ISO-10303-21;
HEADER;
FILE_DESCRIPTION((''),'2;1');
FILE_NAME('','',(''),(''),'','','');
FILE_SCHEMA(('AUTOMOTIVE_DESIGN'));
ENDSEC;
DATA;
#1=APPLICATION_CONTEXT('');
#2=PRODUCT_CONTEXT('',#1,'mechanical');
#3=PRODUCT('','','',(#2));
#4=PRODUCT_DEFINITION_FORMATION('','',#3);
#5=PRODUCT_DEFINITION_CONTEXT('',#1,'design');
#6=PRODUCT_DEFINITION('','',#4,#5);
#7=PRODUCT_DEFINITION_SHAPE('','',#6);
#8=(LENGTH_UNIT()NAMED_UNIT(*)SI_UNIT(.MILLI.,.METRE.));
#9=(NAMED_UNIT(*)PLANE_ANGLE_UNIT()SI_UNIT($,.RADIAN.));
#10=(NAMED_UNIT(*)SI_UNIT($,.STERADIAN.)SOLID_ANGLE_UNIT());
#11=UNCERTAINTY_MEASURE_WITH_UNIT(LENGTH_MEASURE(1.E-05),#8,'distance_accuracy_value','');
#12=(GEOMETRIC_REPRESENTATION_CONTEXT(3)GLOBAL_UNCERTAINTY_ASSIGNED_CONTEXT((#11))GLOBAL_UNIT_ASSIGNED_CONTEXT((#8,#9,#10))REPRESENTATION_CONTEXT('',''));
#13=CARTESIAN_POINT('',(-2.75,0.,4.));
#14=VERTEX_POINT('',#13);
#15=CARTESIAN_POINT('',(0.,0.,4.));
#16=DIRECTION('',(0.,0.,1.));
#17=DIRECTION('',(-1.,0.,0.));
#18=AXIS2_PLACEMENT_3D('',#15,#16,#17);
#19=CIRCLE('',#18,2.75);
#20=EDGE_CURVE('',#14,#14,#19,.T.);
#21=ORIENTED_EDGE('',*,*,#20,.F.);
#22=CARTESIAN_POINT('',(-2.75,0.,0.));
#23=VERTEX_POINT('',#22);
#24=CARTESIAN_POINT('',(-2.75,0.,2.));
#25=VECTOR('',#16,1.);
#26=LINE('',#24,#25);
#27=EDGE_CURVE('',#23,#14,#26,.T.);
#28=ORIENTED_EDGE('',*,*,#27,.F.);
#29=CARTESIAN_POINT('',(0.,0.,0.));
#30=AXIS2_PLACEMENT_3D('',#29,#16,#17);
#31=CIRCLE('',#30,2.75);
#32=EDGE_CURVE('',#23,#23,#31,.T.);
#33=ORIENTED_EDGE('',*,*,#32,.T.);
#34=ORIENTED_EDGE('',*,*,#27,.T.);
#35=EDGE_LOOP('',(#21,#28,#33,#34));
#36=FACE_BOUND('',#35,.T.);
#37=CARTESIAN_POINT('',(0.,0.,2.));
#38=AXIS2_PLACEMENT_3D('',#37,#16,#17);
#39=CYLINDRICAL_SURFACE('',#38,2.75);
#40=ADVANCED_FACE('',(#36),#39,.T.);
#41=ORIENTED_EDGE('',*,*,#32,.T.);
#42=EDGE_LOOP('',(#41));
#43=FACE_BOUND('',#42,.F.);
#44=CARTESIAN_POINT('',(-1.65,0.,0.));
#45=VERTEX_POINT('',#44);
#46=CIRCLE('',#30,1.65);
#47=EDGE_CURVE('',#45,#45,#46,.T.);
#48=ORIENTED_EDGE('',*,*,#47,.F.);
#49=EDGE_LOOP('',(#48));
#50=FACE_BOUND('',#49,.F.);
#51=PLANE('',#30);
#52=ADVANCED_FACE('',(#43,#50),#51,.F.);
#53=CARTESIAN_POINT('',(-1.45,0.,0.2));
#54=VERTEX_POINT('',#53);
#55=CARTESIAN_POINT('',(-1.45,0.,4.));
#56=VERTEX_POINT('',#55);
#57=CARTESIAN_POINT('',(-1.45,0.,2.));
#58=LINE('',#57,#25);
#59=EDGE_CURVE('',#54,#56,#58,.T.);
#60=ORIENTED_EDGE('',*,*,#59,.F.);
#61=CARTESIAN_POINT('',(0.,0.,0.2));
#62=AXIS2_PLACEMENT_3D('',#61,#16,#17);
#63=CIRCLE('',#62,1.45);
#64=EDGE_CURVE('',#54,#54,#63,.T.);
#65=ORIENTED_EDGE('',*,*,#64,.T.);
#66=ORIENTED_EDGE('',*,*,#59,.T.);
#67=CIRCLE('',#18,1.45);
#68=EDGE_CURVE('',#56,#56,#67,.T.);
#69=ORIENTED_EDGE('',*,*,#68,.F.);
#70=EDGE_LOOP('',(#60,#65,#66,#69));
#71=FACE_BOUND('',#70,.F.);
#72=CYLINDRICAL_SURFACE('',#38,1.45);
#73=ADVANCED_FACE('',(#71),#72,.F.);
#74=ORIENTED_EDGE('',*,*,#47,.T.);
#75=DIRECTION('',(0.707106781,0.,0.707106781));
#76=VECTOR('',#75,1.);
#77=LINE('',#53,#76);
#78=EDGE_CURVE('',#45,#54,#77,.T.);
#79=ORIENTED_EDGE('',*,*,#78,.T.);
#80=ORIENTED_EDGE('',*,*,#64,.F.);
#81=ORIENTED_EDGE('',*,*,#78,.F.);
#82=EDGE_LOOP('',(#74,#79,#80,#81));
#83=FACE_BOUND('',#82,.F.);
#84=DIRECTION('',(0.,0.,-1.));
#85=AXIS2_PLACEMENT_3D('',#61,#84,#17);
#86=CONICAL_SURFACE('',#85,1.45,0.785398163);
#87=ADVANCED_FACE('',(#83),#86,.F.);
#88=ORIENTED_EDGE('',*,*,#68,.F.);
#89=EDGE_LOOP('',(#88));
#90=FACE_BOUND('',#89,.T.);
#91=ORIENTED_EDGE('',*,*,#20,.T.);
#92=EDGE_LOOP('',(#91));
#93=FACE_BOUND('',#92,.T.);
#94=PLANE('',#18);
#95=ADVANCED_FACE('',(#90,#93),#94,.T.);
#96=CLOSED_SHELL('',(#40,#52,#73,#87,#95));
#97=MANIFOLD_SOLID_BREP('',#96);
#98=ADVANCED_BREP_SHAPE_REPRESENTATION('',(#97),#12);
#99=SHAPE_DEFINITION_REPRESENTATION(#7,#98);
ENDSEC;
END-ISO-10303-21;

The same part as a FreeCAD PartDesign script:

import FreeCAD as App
import Part
import Sketcher
Q = App.Units.Quantity


def edges_at(feature, points):
    """Names of the edges that pass closest to the given points."""
    edges = feature.Shape.Edges
    near = lambda p: min(range(len(edges)), key=lambda i: edges[i].distToShape(Part.Vertex(*p))[0])
    return sorted({f"Edge{near(p) + 1}" for p in points})

doc = App.newDocument("Part")
body = doc.addObject("PartDesign::Body", "Body")

sketch1 = doc.addObject("Sketcher::SketchObject", "Sketch")
body.addObject(sketch1)
sketch1.AttachmentSupport = (doc.XZ_Plane, [""])
sketch1.MapMode = "FlatFace"
sketch1.addGeometry([
    Part.LineSegment(App.Vector(-2.8, 4, 0), App.Vector(-2.8, 0, 0)),
    Part.LineSegment(App.Vector(-2.8, 0, 0), App.Vector(-1.4, 0, 0)),
    Part.LineSegment(App.Vector(-1.4, 0, 0), App.Vector(-1.4, 4, 0)),
    Part.LineSegment(App.Vector(-1.4, 4, 0), App.Vector(-2.8, 4, 0)),
], False)
sketch1.addConstraint([
    Sketcher.Constraint("Coincident", 0, 2, 1, 1),
    Sketcher.Constraint("Coincident", 1, 2, 2, 1),
    Sketcher.Constraint("Coincident", 2, 2, 3, 1),
    Sketcher.Constraint("Coincident", 3, 2, 0, 1),
    Sketcher.Constraint("Vertical", 0),
    Sketcher.Constraint("Horizontal", 1),
    Sketcher.Constraint("Vertical", 2),
    Sketcher.Constraint("Horizontal", 3),
    Sketcher.Constraint("PointOnObject", 0, 2, -1),
    Sketcher.Constraint("DistanceY", 0, 2, 0, 1, Q("4 mm")),
    Sketcher.Constraint("DistanceX", 1, 1, 1, 2, Q("1.3 mm")),
    Sketcher.Constraint("DistanceX", 0, 2, -1, 1, Q("2.75 mm")),
])
revolution = doc.addObject("PartDesign::Revolution", "Revolution")
body.addObject(revolution)
revolution.Profile = sketch1
revolution.ReferenceAxis = (sketch1, ["V_Axis"])
revolution.Angle = 360
doc.recompute()

chamfer = doc.addObject("PartDesign::Chamfer", "Chamfer")
body.addObject(chamfer)
chamfer.Base = (revolution, edges_at(revolution, [(1.45, 0, 0)]))
chamfer.Size = 0.2

doc.recompute()
